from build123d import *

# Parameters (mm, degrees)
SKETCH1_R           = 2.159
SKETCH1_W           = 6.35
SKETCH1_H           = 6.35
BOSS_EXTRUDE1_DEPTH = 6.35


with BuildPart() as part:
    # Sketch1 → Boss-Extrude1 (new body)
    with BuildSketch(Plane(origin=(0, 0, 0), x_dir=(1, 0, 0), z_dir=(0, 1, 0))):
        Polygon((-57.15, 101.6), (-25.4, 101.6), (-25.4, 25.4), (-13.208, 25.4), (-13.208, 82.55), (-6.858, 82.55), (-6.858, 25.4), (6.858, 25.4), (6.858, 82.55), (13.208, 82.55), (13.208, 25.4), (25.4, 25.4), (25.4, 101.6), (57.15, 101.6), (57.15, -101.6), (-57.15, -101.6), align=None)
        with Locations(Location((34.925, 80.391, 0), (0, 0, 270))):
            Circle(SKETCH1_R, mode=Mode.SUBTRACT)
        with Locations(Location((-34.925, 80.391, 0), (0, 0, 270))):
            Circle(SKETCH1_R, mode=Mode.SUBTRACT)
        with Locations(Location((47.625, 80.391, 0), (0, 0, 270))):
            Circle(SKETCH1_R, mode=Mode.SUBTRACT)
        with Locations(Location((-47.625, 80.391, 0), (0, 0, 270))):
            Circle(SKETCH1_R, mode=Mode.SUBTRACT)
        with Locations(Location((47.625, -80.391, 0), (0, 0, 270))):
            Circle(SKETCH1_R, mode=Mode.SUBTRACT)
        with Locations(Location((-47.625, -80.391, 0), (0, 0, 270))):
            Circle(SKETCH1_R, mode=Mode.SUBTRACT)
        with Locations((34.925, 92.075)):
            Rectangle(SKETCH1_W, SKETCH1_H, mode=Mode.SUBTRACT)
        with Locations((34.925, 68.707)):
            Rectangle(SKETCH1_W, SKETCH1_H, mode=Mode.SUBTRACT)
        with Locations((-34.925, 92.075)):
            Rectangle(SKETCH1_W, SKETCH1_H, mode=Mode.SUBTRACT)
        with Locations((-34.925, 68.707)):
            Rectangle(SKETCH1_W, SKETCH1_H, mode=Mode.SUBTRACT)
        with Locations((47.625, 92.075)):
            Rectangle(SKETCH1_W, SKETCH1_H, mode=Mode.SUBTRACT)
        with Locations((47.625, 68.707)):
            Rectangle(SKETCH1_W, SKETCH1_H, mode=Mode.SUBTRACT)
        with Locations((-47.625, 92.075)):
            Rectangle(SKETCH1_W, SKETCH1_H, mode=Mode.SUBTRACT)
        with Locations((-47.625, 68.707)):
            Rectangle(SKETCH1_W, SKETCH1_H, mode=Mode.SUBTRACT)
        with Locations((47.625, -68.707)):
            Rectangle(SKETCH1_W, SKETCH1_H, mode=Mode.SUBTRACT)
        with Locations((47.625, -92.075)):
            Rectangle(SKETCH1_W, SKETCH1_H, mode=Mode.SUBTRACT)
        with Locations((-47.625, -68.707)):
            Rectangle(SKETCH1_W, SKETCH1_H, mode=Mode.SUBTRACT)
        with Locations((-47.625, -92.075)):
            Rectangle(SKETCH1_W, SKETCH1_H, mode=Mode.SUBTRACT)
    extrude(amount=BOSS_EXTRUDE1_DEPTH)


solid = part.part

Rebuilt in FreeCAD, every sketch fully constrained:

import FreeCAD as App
import Part
import Sketcher
Q = App.Units.Quantity


def add_polygon(sketch, points):
    """Adds a closed chain of lines whose ends are joined by coincident constraints."""
    first, n = sketch.GeometryCount, len(points)
    for a, b in zip(points, points[1:] + points[:1]):
        sketch.addGeometry(Part.LineSegment(App.Vector(*a, 0), App.Vector(*b, 0)), False)
    for i in range(n):
        sketch.addConstraint(Sketcher.Constraint("Coincident", first + i, 2, first + (i + 1) % n, 1))

doc = App.newDocument("Part")
body = doc.addObject("PartDesign::Body", "Body")

sketch1 = body.newObject("Sketcher::SketchObject", "Sketch")
sketch1.AttachmentSupport = (doc.getObject("XZ_Plane"), [""])
sketch1.MapMode = "FlatFace"
add_polygon(sketch1, [(-25.4, -101.6), (-57.1, -101.6), (-57.1, 101.6), (57.1, 101.6), (57.1, -101.6), (25.4, -101.6), (25.4, -25.4), (13.2, -25.4), (13.2, -82.5), (6.9, -82.5), (6.9, -25.4), (-6.9, -25.4), (-6.9, -82.5), (-13.2, -82.5), (-13.2, -25.4), (-25.4, -25.4)])
add_polygon(sketch1, [(44.5, 95.2), (44.5, 88.9), (50.8, 88.9), (50.8, 95.2)])
sketch1.addGeometry(Part.Circle(App.Vector(47.6, 80.4, 0), App.Vector(0, 0, 1), 2.2), False)
add_polygon(sketch1, [(44.5, 71.9), (44.5, 65.5), (50.8, 65.5), (50.8, 71.9)])
add_polygon(sketch1, [(-50.8, 95.2), (-50.8, 88.9), (-44.5, 88.9), (-44.5, 95.2)])
sketch1.addGeometry(Part.Circle(App.Vector(-47.6, 80.4, 0), App.Vector(0, 0, 1), 2.2), False)
add_polygon(sketch1, [(-50.8, 71.9), (-50.8, 65.5), (-44.5, 65.5), (-44.5, 71.9)])
add_polygon(sketch1, [(44.5, -65.5), (44.5, -71.9), (50.8, -71.9), (50.8, -65.5)])
add_polygon(sketch1, [(31.8, -65.5), (31.8, -71.9), (38.1, -71.9), (38.1, -65.5)])
sketch1.addGeometry(Part.Circle(App.Vector(47.6, -80.4, 0), App.Vector(0, 0, 1), 2.2), False)
add_polygon(sketch1, [(44.5, -88.9), (44.5, -95.2), (50.8, -95.2), (50.8, -88.9)])
sketch1.addGeometry(Part.Circle(App.Vector(34.9, -80.4, 0), App.Vector(0, 0, 1), 2.2), False)
add_polygon(sketch1, [(31.8, -88.9), (31.8, -95.2), (38.1, -95.2), (38.1, -88.9)])
add_polygon(sketch1, [(-38.1, -65.5), (-38.1, -71.9), (-31.8, -71.9), (-31.8, -65.5)])
add_polygon(sketch1, [(-50.8, -65.5), (-50.8, -71.9), (-44.5, -71.9), (-44.5, -65.5)])
sketch1.addGeometry(Part.Circle(App.Vector(-34.9, -80.4, 0), App.Vector(0, 0, 1), 2.2), False)
add_polygon(sketch1, [(-38.1, -88.9), (-38.1, -95.2), (-31.8, -95.2), (-31.8, -88.9)])
sketch1.addGeometry(Part.Circle(App.Vector(-47.6, -80.4, 0), App.Vector(0, 0, 1), 2.2), False)
add_polygon(sketch1, [(-50.8, -88.9), (-50.8, -95.2), (-44.5, -95.2), (-44.5, -88.9)])
sketch1.addConstraint(Sketcher.Constraint("Horizontal", 0))
sketch1.addConstraint(Sketcher.Constraint("Vertical", 1))
sketch1.addConstraint(Sketcher.Constraint("Horizontal", 2))
sketch1.addConstraint(Sketcher.Constraint("Vertical", 3))
sketch1.addConstraint(Sketcher.Constraint("Horizontal", 4))
sketch1.addConstraint(Sketcher.Constraint("Vertical", 5))
sketch1.addConstraint(Sketcher.Constraint("Horizontal", 6))
sketch1.addConstraint(Sketcher.Constraint("Vertical", 7))
sketch1.addConstraint(Sketcher.Constraint("Horizontal", 8))
sketch1.addConstraint(Sketcher.Constraint("Vertical", 9))
sketch1.addConstraint(Sketcher.Constraint("Horizontal", 10))
sketch1.addConstraint(Sketcher.Constraint("Vertical", 11))
sketch1.addConstraint(Sketcher.Constraint("Horizontal", 12))
sketch1.addConstraint(Sketcher.Constraint("Vertical", 13))
sketch1.addConstraint(Sketcher.Constraint("Horizontal", 14))
sketch1.addConstraint(Sketcher.Constraint("Vertical", 15))
sketch1.addConstraint(Sketcher.Constraint("Vertical", 16))
sketch1.addConstraint(Sketcher.Constraint("Horizontal", 17))
sketch1.addConstraint(Sketcher.Constraint("Vertical", 18))
sketch1.addConstraint(Sketcher.Constraint("Horizontal", 19))
sketch1.addConstraint(Sketcher.Constraint("Vertical", 21))
sketch1.addConstraint(Sketcher.Constraint("Horizontal", 22))
sketch1.addConstraint(Sketcher.Constraint("Vertical", 23))
sketch1.addConstraint(Sketcher.Constraint("Horizontal", 24))
sketch1.addConstraint(Sketcher.Constraint("Vertical", 25))
sketch1.addConstraint(Sketcher.Constraint("Horizontal", 26))
sketch1.addConstraint(Sketcher.Constraint("Vertical", 27))
sketch1.addConstraint(Sketcher.Constraint("Horizontal", 28))
sketch1.addConstraint(Sketcher.Constraint("Vertical", 30))
sketch1.addConstraint(Sketcher.Constraint("Horizontal", 31))
sketch1.addConstraint(Sketcher.Constraint("Vertical", 32))
sketch1.addConstraint(Sketcher.Constraint("Horizontal", 33))
sketch1.addConstraint(Sketcher.Constraint("Vertical", 34))
sketch1.addConstraint(Sketcher.Constraint("Horizontal", 35))
sketch1.addConstraint(Sketcher.Constraint("Vertical", 36))
sketch1.addConstraint(Sketcher.Constraint("Horizontal", 37))
sketch1.addConstraint(Sketcher.Constraint("Vertical", 38))
sketch1.addConstraint(Sketcher.Constraint("Horizontal", 39))
sketch1.addConstraint(Sketcher.Constraint("Vertical", 40))
sketch1.addConstraint(Sketcher.Constraint("Horizontal", 41))
sketch1.addConstraint(Sketcher.Constraint("Vertical", 43))
sketch1.addConstraint(Sketcher.Constraint("Horizontal", 44))
sketch1.addConstraint(Sketcher.Constraint("Vertical", 45))
sketch1.addConstraint(Sketcher.Constraint("Horizontal", 46))
sketch1.addConstraint(Sketcher.Constraint("Vertical", 48))
sketch1.addConstraint(Sketcher.Constraint("Horizontal", 49))
sketch1.addConstraint(Sketcher.Constraint("Vertical", 50))
sketch1.addConstraint(Sketcher.Constraint("Horizontal", 51))
sketch1.addConstraint(Sketcher.Constraint("Vertical", 52))
sketch1.addConstraint(Sketcher.Constraint("Horizontal", 53))
sketch1.addConstraint(Sketcher.Constraint("Vertical", 54))
sketch1.addConstraint(Sketcher.Constraint("Horizontal", 55))
sketch1.addConstraint(Sketcher.Constraint("Vertical", 56))
sketch1.addConstraint(Sketcher.Constraint("Horizontal", 57))
sketch1.addConstraint(Sketcher.Constraint("Vertical", 58))
sketch1.addConstraint(Sketcher.Constraint("Horizontal", 59))
sketch1.addConstraint(Sketcher.Constraint("Vertical", 61))
sketch1.addConstraint(Sketcher.Constraint("Horizontal", 62))
sketch1.addConstraint(Sketcher.Constraint("Vertical", 63))
sketch1.addConstraint(Sketcher.Constraint("Horizontal", 64))
sketch1.addConstraint(Sketcher.Constraint("Vertical", 66))
sketch1.addConstraint(Sketcher.Constraint("Horizontal", 67))
sketch1.addConstraint(Sketcher.Constraint("Vertical", 68))
sketch1.addConstraint(Sketcher.Constraint("Horizontal", 69))
sketch1.addConstraint(Sketcher.Constraint("Equal", 20, 29))
sketch1.addConstraint(Sketcher.Constraint("Equal", 29, 42))
sketch1.addConstraint(Sketcher.Constraint("Equal", 42, 47))
sketch1.addConstraint(Sketcher.Constraint("Equal", 47, 60))
sketch1.addConstraint(Sketcher.Constraint("Equal", 60, 65))
sketch1.addConstraint(Sketcher.Constraint("Symmetric", 29, 3, 42, 3, -1, 1))
sketch1.addConstraint(Sketcher.Constraint("Symmetric", 20, 3, 65, 3, -1, 1))
sketch1.addConstraint(Sketcher.Constraint("Symmetric", 0, 2, 2, 2, -1, 1))
sketch1.addConstraint(Sketcher.Constraint("Symmetric", 32, 2, 34, 2, -1, 1))
sketch1.addConstraint(Sketcher.Constraint("Symmetric", 30, 2, 36, 2, -1, 1))
sketch1.addConstraint(Sketcher.Constraint("Symmetric", 27, 2, 43, 2, -1, 1))
sketch1.addConstraint(Sketcher.Constraint("Symmetric", 25, 2, 45, 2, -1, 1))
sketch1.addConstraint(Sketcher.Constraint("Symmetric", 23, 2, 56, 2, -1, 1))
sketch1.addConstraint(Sketcher.Constraint("Symmetric", 21, 2, 58, 2, -1, 1))
sketch1.addConstraint(Sketcher.Constraint("Symmetric", 18, 2, 66, 2, -1, 1))
sketch1.addConstraint(Sketcher.Constraint("Symmetric", 16, 2, 68, 2, -1, 1))
sketch1.addConstraint(Sketcher.Constraint("Symmetric", 20, 3, 29, 3, -2))
sketch1.addConstraint(Sketcher.Constraint("Symmetric", 47, 3, 60, 3, -2))
sketch1.addConstraint(Sketcher.Constraint("Symmetric", 8, 2, 11, 2, -2))
sketch1.addConstraint(Sketcher.Constraint("Symmetric", 6, 2, 13, 2, -2))
sketch1.addConstraint(Sketcher.Constraint("Symmetric", 4, 2, 15, 2, -2))
sketch1.addConstraint(Sketcher.Constraint("Symmetric", 17, 2, 25, 2, -2))
sketch1.addConstraint(Sketcher.Constraint("Symmetric", 19, 2, 27, 2, -2))
sketch1.addConstraint(Sketcher.Constraint("Symmetric", 22, 2, 30, 2, -2))
sketch1.addConstraint(Sketcher.Constraint("Symmetric", 24, 2, 32, 2, -2))
sketch1.addConstraint(Sketcher.Constraint("Symmetric", 39, 2, 52, 2, -2))
sketch1.addConstraint(Sketcher.Constraint("Symmetric", 41, 2, 54, 2, -2))
sketch1.addConstraint(Sketcher.Constraint("Symmetric", 49, 2, 61, 2, -2))
sketch1.addConstraint(Sketcher.Constraint("Symmetric", 51, 2, 63, 2, -2))
sketch1.addConstraint(Sketcher.Constraint("Horizontal", 42, 3, 47, 3))
sketch1.addConstraint(Sketcher.Constraint("Horizontal", 6, 2, 9, 2))
sketch1.addConstraint(Sketcher.Constraint("Horizontal", 35, 2, 38, 2))
sketch1.addConstraint(Sketcher.Constraint("Horizontal", 37, 2, 40, 2))
sketch1.addConstraint(Sketcher.Constraint("Horizontal", 44, 2, 48, 2))
sketch1.addConstraint(Sketcher.Constraint("Horizontal", 46, 2, 50, 2))
sketch1.addConstraint(Sketcher.Constraint("Vertical", 19, 2, 21, 2))
sketch1.addConstraint(Sketcher.Constraint("Vertical", 18, 2, 22, 2))
sketch1.addConstraint(Sketcher.Constraint("Vertical", 41, 2, 48, 2))
sketch1.addConstraint(Sketcher.Constraint("Vertical", 40, 2, 49, 2))
sketch1.addConstraint(Sketcher.Constraint("Equal", 12, 17))
sketch1.addConstraint(Sketcher.Constraint("Equal", 37, 39))
sketch1.addConstraint(Sketcher.Constraint("Equal", 69, 16))
sketch1.addConstraint(Sketcher.Constraint("Equal", 18, 21))
sketch1.addConstraint(Sketcher.Constraint("Diameter", 20, Q("0.17 in")))
sketch1.addConstraint(Sketcher.Constraint("DistanceY", 1, 1, 1, 2, Q("8 in")))
sketch1.addConstraint(Sketcher.Constraint("DistanceY", 5, 1, 5, 2, Q("3 in")))
sketch1.addConstraint(Sketcher.Constraint("DistanceX", 2, 1, 2, 2, Q("4.5 in")))
sketch1.addConstraint(Sketcher.Constraint("DistanceX", -1, 1, 4, 2, Q("1 in")))
sketch1.addConstraint(Sketcher.Constraint("DistanceX", -1, 1, 17, 2, Q("2 in")))
sketch1.addConstraint(Sketcher.Constraint("DistanceX", 6, 2, 6, 1, Q("0.48 in")))
sketch1.addConstraint(Sketcher.Constraint("DistanceX", 8, 2, 8, 1, Q("0.25 in")))
sketch1.addConstraint(Sketcher.Constraint("DistanceY", 7, 2, 7, 1, Q("2.25 in")))
sketch1.addConstraint(Sketcher.Constraint("DistanceY", -1, 1, 16, 2, Q("3.5 in")))
sketch1.addConstraint(Sketcher.Constraint("DistanceX", -1, 1, 39, 2, Q("1.5 in")))
sketch1.addConstraint(Sketcher.Constraint("DistanceY", -1, 1, 21, 2, Q("2.58 in")))
sketch1.addConstraint(Sketcher.Constraint("DistanceX", -1, 1, 20, 3, Q("1.875 in")))
sketch1.addConstraint(Sketcher.Constraint("DistanceY", -1, 1, 20, 3, Q("3.165 in")))
sketch1.addConstraint(Sketcher.Constraint("DistanceX", -1, 1, 47, 3, Q("1.375 in")))
pad1 = body.newObject("PartDesign::Pad", "Pad")
pad1.Profile = sketch1
pad1.Length = Q("0.25 in")
pad1.Reversed = True

doc.recompute()
